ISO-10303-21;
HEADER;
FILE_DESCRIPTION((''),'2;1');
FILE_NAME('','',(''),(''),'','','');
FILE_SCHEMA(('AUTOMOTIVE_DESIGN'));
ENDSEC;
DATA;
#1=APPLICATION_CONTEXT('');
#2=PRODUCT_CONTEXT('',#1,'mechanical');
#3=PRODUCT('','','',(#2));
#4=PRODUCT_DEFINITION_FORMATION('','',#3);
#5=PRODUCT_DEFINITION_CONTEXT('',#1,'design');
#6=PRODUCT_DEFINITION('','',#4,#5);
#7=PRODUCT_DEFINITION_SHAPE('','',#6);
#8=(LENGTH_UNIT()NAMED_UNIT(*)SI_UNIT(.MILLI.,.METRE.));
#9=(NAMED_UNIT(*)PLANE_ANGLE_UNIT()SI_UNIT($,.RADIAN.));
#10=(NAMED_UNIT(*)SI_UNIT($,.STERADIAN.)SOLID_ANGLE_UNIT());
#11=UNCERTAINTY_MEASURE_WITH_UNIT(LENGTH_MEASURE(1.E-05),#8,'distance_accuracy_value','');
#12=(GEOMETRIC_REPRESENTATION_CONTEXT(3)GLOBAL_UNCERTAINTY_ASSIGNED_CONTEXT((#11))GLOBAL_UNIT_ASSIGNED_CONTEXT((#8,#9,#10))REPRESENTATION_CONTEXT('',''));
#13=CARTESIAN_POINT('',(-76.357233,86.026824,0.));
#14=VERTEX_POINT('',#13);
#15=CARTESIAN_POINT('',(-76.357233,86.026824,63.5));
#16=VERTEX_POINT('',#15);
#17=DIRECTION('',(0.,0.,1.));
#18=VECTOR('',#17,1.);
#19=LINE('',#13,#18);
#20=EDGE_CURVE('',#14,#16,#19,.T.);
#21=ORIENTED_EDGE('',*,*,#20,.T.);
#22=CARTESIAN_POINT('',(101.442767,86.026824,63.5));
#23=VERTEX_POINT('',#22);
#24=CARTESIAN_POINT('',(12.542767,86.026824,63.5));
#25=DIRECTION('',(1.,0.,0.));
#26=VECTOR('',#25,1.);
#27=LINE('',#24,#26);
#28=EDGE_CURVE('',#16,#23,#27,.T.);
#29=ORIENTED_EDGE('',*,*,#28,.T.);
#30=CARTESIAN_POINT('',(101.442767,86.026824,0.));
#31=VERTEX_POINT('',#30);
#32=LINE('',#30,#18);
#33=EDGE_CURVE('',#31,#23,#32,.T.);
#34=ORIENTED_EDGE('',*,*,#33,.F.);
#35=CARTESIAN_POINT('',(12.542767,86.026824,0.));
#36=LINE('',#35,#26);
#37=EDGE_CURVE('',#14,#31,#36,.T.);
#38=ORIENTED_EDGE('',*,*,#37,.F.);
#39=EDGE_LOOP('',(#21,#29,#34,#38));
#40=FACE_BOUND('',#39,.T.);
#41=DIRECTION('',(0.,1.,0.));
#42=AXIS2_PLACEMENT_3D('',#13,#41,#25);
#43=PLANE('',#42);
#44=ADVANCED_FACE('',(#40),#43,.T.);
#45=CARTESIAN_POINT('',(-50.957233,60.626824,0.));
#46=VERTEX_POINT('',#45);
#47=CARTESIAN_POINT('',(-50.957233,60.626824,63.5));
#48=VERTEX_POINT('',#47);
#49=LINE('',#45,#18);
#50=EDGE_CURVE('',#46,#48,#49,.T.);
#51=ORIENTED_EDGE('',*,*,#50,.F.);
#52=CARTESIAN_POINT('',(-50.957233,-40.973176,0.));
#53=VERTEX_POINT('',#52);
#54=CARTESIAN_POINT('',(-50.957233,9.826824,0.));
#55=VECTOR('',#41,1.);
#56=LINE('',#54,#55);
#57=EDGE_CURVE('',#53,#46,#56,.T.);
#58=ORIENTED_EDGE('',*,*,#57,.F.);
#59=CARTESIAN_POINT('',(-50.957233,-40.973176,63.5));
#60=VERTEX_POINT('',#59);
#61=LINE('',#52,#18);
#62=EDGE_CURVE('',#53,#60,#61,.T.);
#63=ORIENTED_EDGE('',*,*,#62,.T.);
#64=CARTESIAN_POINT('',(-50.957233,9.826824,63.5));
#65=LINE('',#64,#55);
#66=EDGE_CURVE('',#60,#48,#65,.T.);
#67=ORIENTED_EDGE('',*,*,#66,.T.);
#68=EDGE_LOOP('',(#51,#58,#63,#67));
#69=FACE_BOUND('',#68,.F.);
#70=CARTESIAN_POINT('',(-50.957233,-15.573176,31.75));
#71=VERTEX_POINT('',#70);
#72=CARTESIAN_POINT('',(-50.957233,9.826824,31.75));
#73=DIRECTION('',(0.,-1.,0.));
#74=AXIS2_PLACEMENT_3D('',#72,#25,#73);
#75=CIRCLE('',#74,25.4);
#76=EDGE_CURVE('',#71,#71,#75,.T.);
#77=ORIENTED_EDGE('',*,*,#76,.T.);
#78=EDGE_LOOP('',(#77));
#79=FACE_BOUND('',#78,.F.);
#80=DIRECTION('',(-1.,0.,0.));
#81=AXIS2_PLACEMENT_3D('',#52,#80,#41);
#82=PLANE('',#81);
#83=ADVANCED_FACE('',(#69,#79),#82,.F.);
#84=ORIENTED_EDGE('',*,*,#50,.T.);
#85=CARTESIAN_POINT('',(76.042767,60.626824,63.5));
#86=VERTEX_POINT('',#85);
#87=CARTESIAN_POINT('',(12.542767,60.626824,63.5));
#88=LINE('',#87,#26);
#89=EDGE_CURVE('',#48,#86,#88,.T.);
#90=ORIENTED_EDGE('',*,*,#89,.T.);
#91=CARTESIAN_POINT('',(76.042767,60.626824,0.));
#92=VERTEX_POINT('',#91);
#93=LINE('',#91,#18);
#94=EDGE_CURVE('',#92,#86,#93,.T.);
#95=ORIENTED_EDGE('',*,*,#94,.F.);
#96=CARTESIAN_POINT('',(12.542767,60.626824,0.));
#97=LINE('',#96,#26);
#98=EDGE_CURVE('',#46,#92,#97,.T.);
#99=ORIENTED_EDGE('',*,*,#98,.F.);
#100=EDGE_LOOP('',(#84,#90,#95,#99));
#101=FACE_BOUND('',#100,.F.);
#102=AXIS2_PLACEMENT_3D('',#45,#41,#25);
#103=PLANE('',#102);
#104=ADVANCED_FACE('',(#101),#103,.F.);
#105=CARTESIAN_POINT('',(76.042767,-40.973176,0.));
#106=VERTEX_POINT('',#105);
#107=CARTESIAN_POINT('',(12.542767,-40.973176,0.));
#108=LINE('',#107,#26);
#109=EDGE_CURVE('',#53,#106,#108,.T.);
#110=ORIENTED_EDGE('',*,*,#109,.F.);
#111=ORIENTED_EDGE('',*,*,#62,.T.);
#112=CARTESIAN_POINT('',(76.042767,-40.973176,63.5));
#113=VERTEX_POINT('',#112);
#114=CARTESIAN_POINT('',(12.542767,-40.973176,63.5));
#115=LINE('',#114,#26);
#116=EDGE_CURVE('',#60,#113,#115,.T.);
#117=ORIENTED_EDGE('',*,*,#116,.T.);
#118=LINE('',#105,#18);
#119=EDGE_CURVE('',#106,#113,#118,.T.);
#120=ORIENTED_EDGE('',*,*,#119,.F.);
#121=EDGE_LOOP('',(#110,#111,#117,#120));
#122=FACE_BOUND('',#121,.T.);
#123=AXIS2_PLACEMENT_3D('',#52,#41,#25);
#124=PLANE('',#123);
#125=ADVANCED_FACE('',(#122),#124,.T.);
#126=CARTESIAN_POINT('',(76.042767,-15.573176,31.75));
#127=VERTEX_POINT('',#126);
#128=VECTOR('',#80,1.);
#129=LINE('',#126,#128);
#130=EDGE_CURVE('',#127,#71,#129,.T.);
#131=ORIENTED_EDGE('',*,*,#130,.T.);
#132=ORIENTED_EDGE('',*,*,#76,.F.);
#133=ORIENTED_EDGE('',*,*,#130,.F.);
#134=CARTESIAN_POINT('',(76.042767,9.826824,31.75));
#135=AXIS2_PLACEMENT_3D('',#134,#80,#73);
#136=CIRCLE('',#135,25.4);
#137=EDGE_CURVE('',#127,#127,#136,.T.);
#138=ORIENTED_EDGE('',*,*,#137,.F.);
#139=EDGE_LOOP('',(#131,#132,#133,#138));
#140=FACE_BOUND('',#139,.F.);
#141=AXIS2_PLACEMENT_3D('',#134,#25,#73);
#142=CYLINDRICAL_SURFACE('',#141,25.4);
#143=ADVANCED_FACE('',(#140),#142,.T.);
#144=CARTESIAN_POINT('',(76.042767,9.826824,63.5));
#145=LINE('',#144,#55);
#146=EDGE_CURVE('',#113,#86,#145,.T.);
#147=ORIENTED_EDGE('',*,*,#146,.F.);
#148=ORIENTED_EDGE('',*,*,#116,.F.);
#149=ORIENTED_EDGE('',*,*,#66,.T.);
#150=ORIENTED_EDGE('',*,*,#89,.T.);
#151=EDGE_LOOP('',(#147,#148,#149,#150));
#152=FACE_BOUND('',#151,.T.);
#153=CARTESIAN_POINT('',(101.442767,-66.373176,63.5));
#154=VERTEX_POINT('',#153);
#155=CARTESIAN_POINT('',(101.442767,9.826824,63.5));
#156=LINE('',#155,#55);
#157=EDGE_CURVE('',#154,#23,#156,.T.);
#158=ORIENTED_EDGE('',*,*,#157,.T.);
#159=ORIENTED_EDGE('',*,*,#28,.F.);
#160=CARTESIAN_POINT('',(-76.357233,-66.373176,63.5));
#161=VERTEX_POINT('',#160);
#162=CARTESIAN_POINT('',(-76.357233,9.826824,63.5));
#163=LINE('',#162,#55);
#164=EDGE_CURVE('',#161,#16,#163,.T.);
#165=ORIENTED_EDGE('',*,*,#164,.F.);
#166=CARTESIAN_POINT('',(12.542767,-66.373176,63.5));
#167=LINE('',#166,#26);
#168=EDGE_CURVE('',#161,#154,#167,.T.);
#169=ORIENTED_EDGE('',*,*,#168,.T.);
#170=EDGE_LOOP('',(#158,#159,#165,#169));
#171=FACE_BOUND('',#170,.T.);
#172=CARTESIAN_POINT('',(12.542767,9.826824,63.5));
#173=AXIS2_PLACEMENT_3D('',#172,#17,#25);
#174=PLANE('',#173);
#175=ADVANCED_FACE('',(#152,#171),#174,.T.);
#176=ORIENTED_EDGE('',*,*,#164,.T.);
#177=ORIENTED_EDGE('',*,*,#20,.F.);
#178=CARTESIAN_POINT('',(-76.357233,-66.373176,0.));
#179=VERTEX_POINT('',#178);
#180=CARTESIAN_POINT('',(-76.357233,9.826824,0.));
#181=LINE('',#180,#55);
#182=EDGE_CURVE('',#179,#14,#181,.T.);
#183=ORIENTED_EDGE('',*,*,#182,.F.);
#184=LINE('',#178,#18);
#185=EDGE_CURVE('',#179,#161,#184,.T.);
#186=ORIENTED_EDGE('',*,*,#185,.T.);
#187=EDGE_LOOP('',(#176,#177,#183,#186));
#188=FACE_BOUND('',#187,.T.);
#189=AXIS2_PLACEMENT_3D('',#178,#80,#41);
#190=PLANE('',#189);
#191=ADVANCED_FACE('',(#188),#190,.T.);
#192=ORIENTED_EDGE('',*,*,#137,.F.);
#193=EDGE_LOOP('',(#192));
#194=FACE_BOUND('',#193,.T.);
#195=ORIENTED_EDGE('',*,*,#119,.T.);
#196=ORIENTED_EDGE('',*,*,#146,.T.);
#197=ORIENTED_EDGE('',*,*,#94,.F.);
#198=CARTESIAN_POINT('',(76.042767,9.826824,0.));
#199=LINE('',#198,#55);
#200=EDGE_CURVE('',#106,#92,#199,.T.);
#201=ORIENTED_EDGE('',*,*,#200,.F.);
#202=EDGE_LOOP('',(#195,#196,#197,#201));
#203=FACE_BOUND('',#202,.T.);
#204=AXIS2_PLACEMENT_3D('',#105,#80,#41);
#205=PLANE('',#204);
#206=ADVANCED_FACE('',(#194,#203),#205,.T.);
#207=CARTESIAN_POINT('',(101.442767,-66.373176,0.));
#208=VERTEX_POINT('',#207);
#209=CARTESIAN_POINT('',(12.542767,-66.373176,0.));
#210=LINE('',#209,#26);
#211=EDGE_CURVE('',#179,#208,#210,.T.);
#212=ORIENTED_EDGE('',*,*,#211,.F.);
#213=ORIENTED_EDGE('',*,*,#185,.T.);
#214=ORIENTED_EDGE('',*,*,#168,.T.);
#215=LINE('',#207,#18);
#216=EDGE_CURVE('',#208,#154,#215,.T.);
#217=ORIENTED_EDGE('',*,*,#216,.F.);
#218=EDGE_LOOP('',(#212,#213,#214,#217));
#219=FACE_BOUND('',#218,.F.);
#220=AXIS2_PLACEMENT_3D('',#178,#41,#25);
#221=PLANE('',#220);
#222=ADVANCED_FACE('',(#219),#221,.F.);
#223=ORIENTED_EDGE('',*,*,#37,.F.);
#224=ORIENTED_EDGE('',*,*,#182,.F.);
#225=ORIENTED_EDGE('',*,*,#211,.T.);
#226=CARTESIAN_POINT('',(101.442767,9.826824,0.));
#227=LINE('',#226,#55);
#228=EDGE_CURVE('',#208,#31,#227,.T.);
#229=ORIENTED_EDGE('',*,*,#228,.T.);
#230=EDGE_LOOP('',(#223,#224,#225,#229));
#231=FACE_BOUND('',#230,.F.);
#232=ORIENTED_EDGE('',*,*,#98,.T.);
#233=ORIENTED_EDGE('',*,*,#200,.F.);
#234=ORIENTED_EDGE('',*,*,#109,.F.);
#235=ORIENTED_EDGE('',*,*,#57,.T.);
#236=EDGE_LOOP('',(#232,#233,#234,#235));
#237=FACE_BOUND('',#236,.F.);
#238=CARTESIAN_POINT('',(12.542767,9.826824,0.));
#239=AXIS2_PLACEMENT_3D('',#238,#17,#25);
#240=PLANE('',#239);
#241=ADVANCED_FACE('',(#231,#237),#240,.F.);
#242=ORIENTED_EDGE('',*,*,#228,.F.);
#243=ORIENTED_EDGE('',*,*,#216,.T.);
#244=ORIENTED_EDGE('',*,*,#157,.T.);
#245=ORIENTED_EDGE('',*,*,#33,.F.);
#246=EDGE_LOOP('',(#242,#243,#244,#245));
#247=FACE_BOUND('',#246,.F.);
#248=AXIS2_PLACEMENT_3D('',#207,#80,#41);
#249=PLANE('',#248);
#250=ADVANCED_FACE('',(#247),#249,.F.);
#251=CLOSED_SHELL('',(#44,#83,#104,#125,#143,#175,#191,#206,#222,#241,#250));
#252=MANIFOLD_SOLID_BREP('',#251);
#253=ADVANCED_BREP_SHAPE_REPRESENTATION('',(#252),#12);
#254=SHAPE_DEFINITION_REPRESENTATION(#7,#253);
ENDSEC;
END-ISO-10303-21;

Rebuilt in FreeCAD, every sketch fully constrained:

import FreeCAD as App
import Part
import Sketcher

V = App.Vector
Q = App.Units.Quantity

doc = App.newDocument("Part")
body = doc.addObject("PartDesign::Body", "Body")

# Sketch on XY plane
sketch1 = body.newObject("Sketcher::SketchObject", "Sketch")
sketch1.AttachmentSupport = (doc.getObject("XY_Plane"), [""])
sketch1.MapMode = "FlatFace"
sketch1.addGeometry([
    Part.LineSegment(V(-76, 86, 0), V(-76, -66, 0)),  # 0
    Part.LineSegment(V(-76, -66, 0), V(101, -66, 0)),  # 1
    Part.LineSegment(V(101, -66, 0), V(101, 86, 0)),  # 2
    Part.LineSegment(V(101, 86, 0), V(-76, 86, 0)),  # 3
    Part.LineSegment(V(76, -41, 0), V(-51, -41, 0)),  # 4
    Part.LineSegment(V(-51, -41, 0), V(-51, 61, 0)),  # 5
    Part.LineSegment(V(-51, 61, 0), V(76, 61, 0)),  # 6
    Part.LineSegment(V(76, 61, 0), V(76, -41, 0)),  # 7
], False)
sketch1.addConstraint([
    Sketcher.Constraint("Coincident", 0, 2, 1, 1),
    Sketcher.Constraint("Coincident", 1, 2, 2, 1),
    Sketcher.Constraint("Coincident", 2, 2, 3, 1),
    Sketcher.Constraint("Coincident", 3, 2, 0, 1),
    Sketcher.Constraint("Coincident", 4, 2, 5, 1),
    Sketcher.Constraint("Coincident", 5, 2, 6, 1),
    Sketcher.Constraint("Coincident", 6, 2, 7, 1),
    Sketcher.Constraint("Coincident", 7, 2, 4, 1),
    Sketcher.Constraint("Vertical", 0),
    Sketcher.Constraint("Horizontal", 1),
    Sketcher.Constraint("Vertical", 2),
    Sketcher.Constraint("Horizontal", 3),
    Sketcher.Constraint("Horizontal", 4),
    Sketcher.Constraint("Vertical", 5),
    Sketcher.Constraint("Horizontal", 6),
    Sketcher.Constraint("Vertical", 7),
    Sketcher.Constraint("DistanceX", 1, 1, 1, 2, Q("7 in")),
    Sketcher.Constraint("DistanceX", 4, 2, 4, 1, Q("5 in")),
    Sketcher.Constraint("DistanceY", 0, 2, 0, 1, Q("6 in")),
    Sketcher.Constraint("DistanceY", 5, 1, 5, 2, Q("4 in")),
    Sketcher.Constraint("DistanceX", 0, 2, 4, 2, Q("1 in")),
    Sketcher.Constraint("DistanceY", 0, 2, 4, 2, Q("1 in")),
    Sketcher.Constraint("DistanceX", 0, 2, -1, 1, 76.357233),
    Sketcher.Constraint("DistanceY", 0, 2, -1, 1, 66.373176),
])
pad1 = body.newObject("PartDesign::Pad", "Pad")
pad1.Profile = sketch1
pad1.Length = Q("2.5 in")

# Sketch on YZ plane
sketch2 = body.newObject("Sketcher::SketchObject", "Sketch001")
sketch2.AttachmentSupport = (doc.getObject("YZ_Plane"), [""])
sketch2.MapMode = "FlatFace"
sketch2.AttachmentOffset = App.Placement(V(0, 0, 76.042767), App.Rotation())
sketch2.addGeometry(Part.Circle(V(10, 32, 0), V(0, 0, 1), 25), False)
sketch2.addConstraint([
    Sketcher.Constraint("Diameter", 0, Q("2 in")),
    Sketcher.Constraint("DistanceY", -1, 1, 0, 3, Q("1.25 in")),
    Sketcher.Constraint("DistanceX", -1, 1, 0, 3, 9.826824),
])
pad2 = body.newObject("PartDesign::Pad", "Pad001")
pad2.Profile = sketch2
pad2.Length = Q("5.63 in")
pad2.Reversed = True

doc.recompute()
